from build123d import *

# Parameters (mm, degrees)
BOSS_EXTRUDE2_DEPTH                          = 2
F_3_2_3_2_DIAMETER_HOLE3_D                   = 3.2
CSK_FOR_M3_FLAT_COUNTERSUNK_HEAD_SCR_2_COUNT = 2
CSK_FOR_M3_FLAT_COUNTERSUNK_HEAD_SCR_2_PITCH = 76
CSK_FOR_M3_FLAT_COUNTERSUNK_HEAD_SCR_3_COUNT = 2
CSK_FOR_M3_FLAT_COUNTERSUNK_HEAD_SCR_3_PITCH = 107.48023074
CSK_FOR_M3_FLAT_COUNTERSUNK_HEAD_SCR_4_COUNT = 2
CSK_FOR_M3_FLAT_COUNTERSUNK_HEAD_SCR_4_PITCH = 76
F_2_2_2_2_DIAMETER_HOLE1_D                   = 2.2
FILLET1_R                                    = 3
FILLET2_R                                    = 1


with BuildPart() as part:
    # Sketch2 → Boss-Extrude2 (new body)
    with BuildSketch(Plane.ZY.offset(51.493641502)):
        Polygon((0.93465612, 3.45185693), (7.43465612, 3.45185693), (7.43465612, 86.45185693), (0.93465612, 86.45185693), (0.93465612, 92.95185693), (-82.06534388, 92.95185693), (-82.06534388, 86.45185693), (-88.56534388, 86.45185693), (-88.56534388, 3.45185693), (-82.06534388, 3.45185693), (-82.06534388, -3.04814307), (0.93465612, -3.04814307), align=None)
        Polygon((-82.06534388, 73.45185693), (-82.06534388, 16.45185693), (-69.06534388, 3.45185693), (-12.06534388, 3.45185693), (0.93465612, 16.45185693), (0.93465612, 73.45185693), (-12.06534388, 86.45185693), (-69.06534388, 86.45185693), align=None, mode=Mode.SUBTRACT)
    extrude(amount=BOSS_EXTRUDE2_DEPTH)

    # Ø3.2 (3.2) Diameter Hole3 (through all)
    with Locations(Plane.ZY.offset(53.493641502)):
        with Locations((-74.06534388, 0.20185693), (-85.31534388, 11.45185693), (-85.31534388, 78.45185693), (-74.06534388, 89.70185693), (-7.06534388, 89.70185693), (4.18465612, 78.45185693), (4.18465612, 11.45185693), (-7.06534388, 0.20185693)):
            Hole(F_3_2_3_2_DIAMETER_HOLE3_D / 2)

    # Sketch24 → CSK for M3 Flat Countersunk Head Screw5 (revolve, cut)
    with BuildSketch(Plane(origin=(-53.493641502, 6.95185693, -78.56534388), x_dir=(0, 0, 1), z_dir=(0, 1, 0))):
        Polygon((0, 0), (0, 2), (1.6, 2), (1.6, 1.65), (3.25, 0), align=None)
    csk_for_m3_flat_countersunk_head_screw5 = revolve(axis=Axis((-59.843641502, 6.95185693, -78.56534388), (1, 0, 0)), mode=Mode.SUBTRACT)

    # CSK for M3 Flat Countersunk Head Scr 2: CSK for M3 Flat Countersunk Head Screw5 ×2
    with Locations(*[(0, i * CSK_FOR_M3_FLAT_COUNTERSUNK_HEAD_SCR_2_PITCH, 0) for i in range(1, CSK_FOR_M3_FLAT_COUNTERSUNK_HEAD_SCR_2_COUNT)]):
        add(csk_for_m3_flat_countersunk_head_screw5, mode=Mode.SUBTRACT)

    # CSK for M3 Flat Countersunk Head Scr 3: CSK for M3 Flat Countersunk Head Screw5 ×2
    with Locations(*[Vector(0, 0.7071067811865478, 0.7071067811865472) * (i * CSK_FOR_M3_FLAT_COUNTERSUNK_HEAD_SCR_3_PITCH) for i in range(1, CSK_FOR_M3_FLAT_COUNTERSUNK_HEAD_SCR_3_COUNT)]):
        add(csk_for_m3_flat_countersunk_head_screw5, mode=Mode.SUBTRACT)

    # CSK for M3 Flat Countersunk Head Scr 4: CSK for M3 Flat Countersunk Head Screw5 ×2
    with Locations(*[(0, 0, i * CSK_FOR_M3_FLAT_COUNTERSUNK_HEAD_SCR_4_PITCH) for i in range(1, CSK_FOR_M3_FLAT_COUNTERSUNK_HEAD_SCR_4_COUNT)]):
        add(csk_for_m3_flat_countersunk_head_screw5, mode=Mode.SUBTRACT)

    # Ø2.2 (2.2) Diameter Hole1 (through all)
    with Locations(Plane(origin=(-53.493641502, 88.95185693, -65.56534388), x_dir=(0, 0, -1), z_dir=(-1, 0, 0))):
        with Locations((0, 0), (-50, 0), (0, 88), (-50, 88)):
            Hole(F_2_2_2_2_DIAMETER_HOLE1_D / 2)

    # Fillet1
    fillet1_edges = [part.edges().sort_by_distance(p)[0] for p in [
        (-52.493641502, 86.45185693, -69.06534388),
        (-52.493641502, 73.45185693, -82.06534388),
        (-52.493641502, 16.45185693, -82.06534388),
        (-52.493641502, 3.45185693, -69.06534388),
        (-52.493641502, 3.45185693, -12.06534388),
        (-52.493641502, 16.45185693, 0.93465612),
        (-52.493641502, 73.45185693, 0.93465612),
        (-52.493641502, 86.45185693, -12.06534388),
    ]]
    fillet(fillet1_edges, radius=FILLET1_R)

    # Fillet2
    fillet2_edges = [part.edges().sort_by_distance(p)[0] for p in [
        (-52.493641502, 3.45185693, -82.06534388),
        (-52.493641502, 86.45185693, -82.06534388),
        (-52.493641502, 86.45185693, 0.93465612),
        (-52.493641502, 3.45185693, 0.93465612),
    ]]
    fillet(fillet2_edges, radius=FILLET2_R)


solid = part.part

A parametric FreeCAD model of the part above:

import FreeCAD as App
import Part
import Sketcher

V = App.Vector
Q = App.Units.Quantity


def edges_at(feature, points):
    """Names of the edges that pass closest to the given points."""
    edges = feature.Shape.Edges
    near = lambda p: min(range(len(edges)), key=lambda i: edges[i].distToShape(Part.Vertex(*p))[0])
    return sorted({f"Edge{near(p) + 1}" for p in points})


def add_polygon(sketch, points):
    """Adds a closed chain of lines whose ends are joined by coincident constraints."""
    first, n = sketch.GeometryCount, len(points)
    for a, b in zip(points, points[1:] + points[:1]):
        sketch.addGeometry(Part.LineSegment(App.Vector(*a, 0), App.Vector(*b, 0)), False)
    for i in range(n):
        sketch.addConstraint(Sketcher.Constraint("Coincident", first + i, 2, first + (i + 1) % n, 1))

doc = App.newDocument("Part")
body = doc.addObject("PartDesign::Body", "Body")

sketch1 = body.newObject("Sketcher::SketchObject", "Sketch")
sketch1.AttachmentSupport = (doc.getObject("YZ_Plane"), [""])
sketch1.MapMode = "FlatFace"
sketch1.AttachmentOffset = App.Placement(V(0, 0, -51.493642), App.Rotation())
add_polygon(sketch1, [(3, 1), (3, 7), (86, 7), (86, 1), (93, 1), (93, -82), (86, -82), (86, -89), (3, -89), (3, -82), (-3, -82), (-3, 1)])
add_polygon(sketch1, [(16, -82), (73, -82), (86, -69), (86, -12), (73, 1), (16, 1), (3, -12), (3, -69)])
sketch1.addConstraint([
    Sketcher.Constraint("Vertical", 0),
    Sketcher.Constraint("Horizontal", 1),
    Sketcher.Constraint("Vertical", 2),
    Sketcher.Constraint("Horizontal", 3),
    Sketcher.Constraint("Vertical", 4),
    Sketcher.Constraint("Horizontal", 5),
    Sketcher.Constraint("Vertical", 6),
    Sketcher.Constraint("Horizontal", 7),
    Sketcher.Constraint("Vertical", 8),
    Sketcher.Constraint("Horizontal", 9),
    Sketcher.Constraint("Vertical", 10),
    Sketcher.Constraint("Horizontal", 11),
    Sketcher.Constraint("Horizontal", 12),
    Sketcher.Constraint("Vertical", 14),
    Sketcher.Constraint("Horizontal", 16),
    Sketcher.Constraint("Vertical", 18),
    Sketcher.Constraint("Perpendicular", 13, 15),
    Sketcher.Constraint("Perpendicular", 15, 17),
    Sketcher.Constraint("Perpendicular", 17, 19),
    Sketcher.Constraint("Horizontal", 5, 2, 8, 2),
    Sketcher.Constraint("Horizontal", 3, 2, 10, 2),
    Sketcher.Constraint("Horizontal", 9, 2, 12, 2),
    Sketcher.Constraint("Horizontal", 11, 2, 15, 2),
    Sketcher.Constraint("Horizontal", 14, 2, 17, 2),
    Sketcher.Constraint("Horizontal", 13, 2, 18, 2),
    Sketcher.Constraint("Vertical", 2, 2, 5, 2),
    Sketcher.Constraint("Vertical", 0, 2, 7, 2),
    Sketcher.Constraint("Vertical", 6, 2, 13, 2),
    Sketcher.Constraint("Vertical", 12, 2, 15, 2),
    Sketcher.Constraint("Vertical", 11, 2, 17, 2),
    Sketcher.Constraint("Vertical", 16, 2, 19, 2),
    Sketcher.Constraint("Equal", 5, 9),
    Sketcher.Constraint("Equal", 11, 0),
    Sketcher.Constraint("Equal", 7, 4),
    Sketcher.Constraint("Equal", 2, 6),
    Sketcher.Constraint("DistanceX", 1, 1, 1, 2, 83.0),
    Sketcher.Constraint("DistanceX", 12, 1, 12, 2, 57.0),
    Sketcher.Constraint("DistanceX", 3, 1, 3, 2, 6.5),
    Sketcher.Constraint("DistanceX", -1, 1, 0, 2, 3.451857),
    Sketcher.Constraint("DistanceY", -1, 1, 0, 2, 7.434656),
])
pad1 = body.newObject("PartDesign::Pad", "Pad")
pad1.Profile = sketch1
pad1.Length = 2
pad1.Reversed = True

sketch2 = body.newObject("Sketcher::SketchObject", "Sketch001")
sketch2.AttachmentSupport = (doc.getObject("YZ_Plane"), [""])
sketch2.MapMode = "FlatFace"
sketch2.AttachmentOffset = App.Placement(V(0, 0, -53.493642), App.Rotation())
sketch2.addGeometry([
    Part.Circle(V(0.2, -74.1, 0), V(0, 0, 1), 1.6),
    Part.Circle(V(11.5, -85.3, 0), V(0, 0, 1), 1.6),
    Part.Circle(V(78.5, -85.3, 0), V(0, 0, 1), 1.6),
    Part.Circle(V(89.7, -74.1, 0), V(0, 0, 1), 1.6),
    Part.Circle(V(89.7, -7.1, 0), V(0, 0, 1), 1.6),
    Part.Circle(V(78.5, 4.2, 0), V(0, 0, 1), 1.6),
    Part.Circle(V(11.5, 4.2, 0), V(0, 0, 1), 1.6),
    Part.Circle(V(0.2, -7.1, 0), V(0, 0, 1), 1.6),
], False)
sketch2.addConstraint([
    Sketcher.Constraint("Equal", 0, 1),
    Sketcher.Constraint("Equal", 1, 2),
    Sketcher.Constraint("Equal", 2, 3),
    Sketcher.Constraint("Equal", 3, 4),
    Sketcher.Constraint("Equal", 4, 5),
    Sketcher.Constraint("Equal", 5, 6),
    Sketcher.Constraint("Equal", 6, 7),
    Sketcher.Constraint("Horizontal", 1, 3, 2, 3),
    Sketcher.Constraint("Horizontal", 0, 3, 3, 3),
    Sketcher.Constraint("Horizontal", 5, 3, 6, 3),
    Sketcher.Constraint("Horizontal", 4, 3, 7, 3),
    Sketcher.Constraint("Vertical", 3, 3, 4, 3),
    Sketcher.Constraint("Vertical", 2, 3, 5, 3),
    Sketcher.Constraint("Vertical", 1, 3, 6, 3),
    Sketcher.Constraint("Vertical", 0, 3, 7, 3),
    Sketcher.Constraint("Diameter", 0, 3.2),
    Sketcher.Constraint("DistanceX", 1, 3, 2, 3, 67.0),
    Sketcher.Constraint("DistanceY", 3, 3, 4, 3, 67.0),
    Sketcher.Constraint("DistanceX", 0, 3, 3, 3, 89.5),
    Sketcher.Constraint("DistanceY", 2, 3, 5, 3, 89.5),
    Sketcher.Constraint("DistanceX", 0, 3, 1, 3, 11.25),
    Sketcher.Constraint("DistanceY", 1, 3, 0, 3, 11.25),
    Sketcher.Constraint("DistanceX", -1, 1, 0, 3, 0.201857),
    Sketcher.Constraint("DistanceY", 0, 3, -1, 1, 74.065344),
])
doc.recompute()
hole = body.newObject("PartDesign::Hole", "Hole")
hole.Profile = sketch2
hole.ThreadType = "None"
hole.Diameter = 3.2
hole.DepthType = "ThroughAll"
hole.Reversed = True

sketch3 = body.newObject("Sketcher::SketchObject", "Sketch002")
sketch3.AttachmentSupport = (doc.getObject("XZ_Plane"), [""])
sketch3.MapMode = "FlatFace"
sketch3.AttachmentOffset = App.Placement(V(0, 0, -6.951857), App.Rotation())
add_polygon(sketch3, [(-51.49, -78.57), (-53.49, -78.57), (-53.49, -75.32), (-51.84, -76.97), (-51.49, -76.97)])
sketch3.addGeometry(Part.LineSegment(V(-53.49, -78.57, 0), V(-51.49, -78.57, 0)), True)
sketch3.addConstraint([
    Sketcher.Constraint("Horizontal", 0),
    Sketcher.Constraint("Vertical", 1),
    Sketcher.Constraint("Horizontal", 3),
    Sketcher.Constraint("Vertical", 4),
    Sketcher.Constraint("Horizontal", 5),
    Sketcher.Constraint("Coincident", 5, 1, 0, 2),
    Sketcher.Constraint("Vertical", 3, 2, 5, 2),
    Sketcher.Constraint("DistanceX", 0, 2, 0, 1, 2.0),
    Sketcher.Constraint("Angle", 2, Q("-45 deg")),
    Sketcher.Constraint("DistanceY", 4, 2, 4, 1, 1.6),
    Sketcher.Constraint("DistanceX", 3, 1, 3, 2, 0.35),
    Sketcher.Constraint("DistanceX", 0, 2, -1, 1, 53.493642),
    Sketcher.Constraint("DistanceY", 0, 2, -1, 1, 78.565344),
])
groove = body.newObject("PartDesign::Groove", "Groove")
groove.Profile = sketch3
groove.ReferenceAxis = (sketch3, ["Axis0"])
groove.Angle = 360
doc.recompute()

linearpattern = body.newObject("PartDesign::LinearPattern", "LinearPattern")
linearpattern.Originals = [groove]
linearpattern.Direction = (doc.getObject("Y_Axis"), [""])
linearpattern.Mode = "offset"
linearpattern.Offset = 76
linearpattern.Occurrences = 2
body.Tip = linearpattern
doc.recompute()

datumline = body.newObject("PartDesign::Line", "DatumLine")
datumline.Placement = App.Placement(V(0, 0, 0), App.Rotation(V(0, 0, 1), V(0, 0.707106781, 0.707106781)))
linearpattern2 = body.newObject("PartDesign::LinearPattern", "LinearPattern001")
linearpattern2.Originals = [groove]
linearpattern2.Direction = (datumline, [""])
linearpattern2.Mode = "offset"
linearpattern2.Offset = 107.480231
linearpattern2.Occurrences = 2
body.Tip = linearpattern2
doc.recompute()

linearpattern3 = body.newObject("PartDesign::LinearPattern", "LinearPattern002")
linearpattern3.Originals = [groove]
linearpattern3.Direction = (doc.getObject("Z_Axis"), [""])
linearpattern3.Mode = "offset"
linearpattern3.Offset = 76
linearpattern3.Occurrences = 2
body.Tip = linearpattern3

sketch4 = body.newObject("Sketcher::SketchObject", "Sketch003")
sketch4.AttachmentSupport = (doc.getObject("YZ_Plane"), [""])
sketch4.MapMode = "FlatFace"
sketch4.AttachmentOffset = App.Placement(V(0, 0, -53.493642), App.Rotation())
sketch4.addGeometry([
    Part.Circle(V(89, -65.6, 0), V(0, 0, 1), 1.1),
    Part.Circle(V(89, -15.6, 0), V(0, 0, 1), 1.1),
    Part.Circle(V(1, -65.6, 0), V(0, 0, 1), 1.1),
    Part.Circle(V(1, -15.6, 0), V(0, 0, 1), 1.1),
], False)
sketch4.addConstraint([
    Sketcher.Constraint("Equal", 0, 1),
    Sketcher.Constraint("Equal", 1, 2),
    Sketcher.Constraint("Equal", 2, 3),
    Sketcher.Constraint("Horizontal", 0, 3, 2, 3),
    Sketcher.Constraint("Horizontal", 1, 3, 3, 3),
    Sketcher.Constraint("Vertical", 0, 3, 1, 3),
    Sketcher.Constraint("Vertical", 2, 3, 3, 3),
    Sketcher.Constraint("Diameter", 0, 2.2),
    Sketcher.Constraint("DistanceY", 0, 3, 1, 3, 50.0),
    Sketcher.Constraint("DistanceX", 2, 3, 0, 3, 88.0),
    Sketcher.Constraint("DistanceX", -1, 1, 0, 3, 88.951857),
    Sketcher.Constraint("DistanceY", 0, 3, -1, 1, 65.565344),
])
doc.recompute()
hole2 = body.newObject("PartDesign::Hole", "Hole001")
hole2.Profile = sketch4
hole2.ThreadType = "None"
hole2.Diameter = 2.2
hole2.DepthType = "ThroughAll"
hole2.Reversed = True
doc.recompute()

fillet = body.newObject("PartDesign::Fillet", "Fillet")
fillet.Base = (hole2, edges_at(hole2, [
    (-52.494, 86.452, -69.065),
    (-52.494, 73.452, -82.065),
    (-52.494, 16.452, -82.065),
    (-52.494, 3.452, -69.065),
    (-52.494, 3.452, -12.065),
    (-52.494, 16.452, 0.935),
    (-52.494, 73.452, 0.935),
    (-52.494, 86.452, -12.065),
]))
fillet.Radius = 3
doc.recompute()

fillet2 = body.newObject("PartDesign::Fillet", "Fillet001")
fillet2.Base = (fillet, edges_at(fillet, [
    (-52.494, 3.452, -82.065),
    (-52.494, 86.452, -82.065),
    (-52.494, 86.452, 0.935),
    (-52.494, 3.452, 0.935),
]))
fillet2.Radius = 1

doc.recompute()
